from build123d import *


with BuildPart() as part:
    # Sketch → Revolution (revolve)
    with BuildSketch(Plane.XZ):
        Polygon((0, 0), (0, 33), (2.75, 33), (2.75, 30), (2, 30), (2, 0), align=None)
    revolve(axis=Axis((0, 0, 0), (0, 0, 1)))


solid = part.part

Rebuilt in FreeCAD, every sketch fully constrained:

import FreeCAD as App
import Part
import Sketcher
Q = App.Units.Quantity

doc = App.newDocument("Part")
body = doc.addObject("PartDesign::Body", "Body")

# Sketch on XZ plane
sketch1 = doc.addObject("Sketcher::SketchObject", "Sketch")
body.addObject(sketch1)
sketch1.AttachmentSupport = (doc.XZ_Plane, [""])
sketch1.MapMode = "FlatFace"
sketch1.addGeometry([
    Part.LineSegment(App.Vector(0, 33, 0), App.Vector(0, 0, 0)),  # 0
    Part.LineSegment(App.Vector(0, 0, 0), App.Vector(2, 0, 0)),  # 1
    Part.LineSegment(App.Vector(2, 0, 0), App.Vector(2, 30, 0)),  # 2
    Part.LineSegment(App.Vector(2, 30, 0), App.Vector(2.8, 30, 0)),  # 3
    Part.LineSegment(App.Vector(2.8, 30, 0), App.Vector(2.8, 33, 0)),  # 4
    Part.LineSegment(App.Vector(2.8, 33, 0), App.Vector(0, 33, 0)),  # 5
], False)
sketch1.addConstraint([
    Sketcher.Constraint("Coincident", 0, 2, 1, 1),
    Sketcher.Constraint("Coincident", 1, 2, 2, 1),
    Sketcher.Constraint("Coincident", 2, 2, 3, 1),
    Sketcher.Constraint("Coincident", 3, 2, 4, 1),
    Sketcher.Constraint("Coincident", 4, 2, 5, 1),
    Sketcher.Constraint("Coincident", 5, 2, 0, 1),
    Sketcher.Constraint("Vertical", 0),
    Sketcher.Constraint("Horizontal", 1),
    Sketcher.Constraint("Vertical", 2),
    Sketcher.Constraint("Horizontal", 3),
    Sketcher.Constraint("Vertical", 4),
    Sketcher.Constraint("Horizontal", 5),
    Sketcher.Constraint("Coincident", 0, 2, -1, 1),
    Sketcher.Constraint("DistanceX", 1, 1, 1, 2, Q("2 mm")),
    Sketcher.Constraint("DistanceY", 0, 2, 0, 1, Q("33 mm")),
    Sketcher.Constraint("DistanceY", 2, 1, 2, 2, Q("30 mm")),
    Sketcher.Constraint("DistanceX", 3, 1, 3, 2, Q("0.75 mm")),
])
revolution = doc.addObject("PartDesign::Revolution", "Revolution")
body.addObject(revolution)
revolution.Profile = sketch1
revolution.ReferenceAxis = (sketch1, ["V_Axis"])
revolution.Angle = 360

doc.recompute()
